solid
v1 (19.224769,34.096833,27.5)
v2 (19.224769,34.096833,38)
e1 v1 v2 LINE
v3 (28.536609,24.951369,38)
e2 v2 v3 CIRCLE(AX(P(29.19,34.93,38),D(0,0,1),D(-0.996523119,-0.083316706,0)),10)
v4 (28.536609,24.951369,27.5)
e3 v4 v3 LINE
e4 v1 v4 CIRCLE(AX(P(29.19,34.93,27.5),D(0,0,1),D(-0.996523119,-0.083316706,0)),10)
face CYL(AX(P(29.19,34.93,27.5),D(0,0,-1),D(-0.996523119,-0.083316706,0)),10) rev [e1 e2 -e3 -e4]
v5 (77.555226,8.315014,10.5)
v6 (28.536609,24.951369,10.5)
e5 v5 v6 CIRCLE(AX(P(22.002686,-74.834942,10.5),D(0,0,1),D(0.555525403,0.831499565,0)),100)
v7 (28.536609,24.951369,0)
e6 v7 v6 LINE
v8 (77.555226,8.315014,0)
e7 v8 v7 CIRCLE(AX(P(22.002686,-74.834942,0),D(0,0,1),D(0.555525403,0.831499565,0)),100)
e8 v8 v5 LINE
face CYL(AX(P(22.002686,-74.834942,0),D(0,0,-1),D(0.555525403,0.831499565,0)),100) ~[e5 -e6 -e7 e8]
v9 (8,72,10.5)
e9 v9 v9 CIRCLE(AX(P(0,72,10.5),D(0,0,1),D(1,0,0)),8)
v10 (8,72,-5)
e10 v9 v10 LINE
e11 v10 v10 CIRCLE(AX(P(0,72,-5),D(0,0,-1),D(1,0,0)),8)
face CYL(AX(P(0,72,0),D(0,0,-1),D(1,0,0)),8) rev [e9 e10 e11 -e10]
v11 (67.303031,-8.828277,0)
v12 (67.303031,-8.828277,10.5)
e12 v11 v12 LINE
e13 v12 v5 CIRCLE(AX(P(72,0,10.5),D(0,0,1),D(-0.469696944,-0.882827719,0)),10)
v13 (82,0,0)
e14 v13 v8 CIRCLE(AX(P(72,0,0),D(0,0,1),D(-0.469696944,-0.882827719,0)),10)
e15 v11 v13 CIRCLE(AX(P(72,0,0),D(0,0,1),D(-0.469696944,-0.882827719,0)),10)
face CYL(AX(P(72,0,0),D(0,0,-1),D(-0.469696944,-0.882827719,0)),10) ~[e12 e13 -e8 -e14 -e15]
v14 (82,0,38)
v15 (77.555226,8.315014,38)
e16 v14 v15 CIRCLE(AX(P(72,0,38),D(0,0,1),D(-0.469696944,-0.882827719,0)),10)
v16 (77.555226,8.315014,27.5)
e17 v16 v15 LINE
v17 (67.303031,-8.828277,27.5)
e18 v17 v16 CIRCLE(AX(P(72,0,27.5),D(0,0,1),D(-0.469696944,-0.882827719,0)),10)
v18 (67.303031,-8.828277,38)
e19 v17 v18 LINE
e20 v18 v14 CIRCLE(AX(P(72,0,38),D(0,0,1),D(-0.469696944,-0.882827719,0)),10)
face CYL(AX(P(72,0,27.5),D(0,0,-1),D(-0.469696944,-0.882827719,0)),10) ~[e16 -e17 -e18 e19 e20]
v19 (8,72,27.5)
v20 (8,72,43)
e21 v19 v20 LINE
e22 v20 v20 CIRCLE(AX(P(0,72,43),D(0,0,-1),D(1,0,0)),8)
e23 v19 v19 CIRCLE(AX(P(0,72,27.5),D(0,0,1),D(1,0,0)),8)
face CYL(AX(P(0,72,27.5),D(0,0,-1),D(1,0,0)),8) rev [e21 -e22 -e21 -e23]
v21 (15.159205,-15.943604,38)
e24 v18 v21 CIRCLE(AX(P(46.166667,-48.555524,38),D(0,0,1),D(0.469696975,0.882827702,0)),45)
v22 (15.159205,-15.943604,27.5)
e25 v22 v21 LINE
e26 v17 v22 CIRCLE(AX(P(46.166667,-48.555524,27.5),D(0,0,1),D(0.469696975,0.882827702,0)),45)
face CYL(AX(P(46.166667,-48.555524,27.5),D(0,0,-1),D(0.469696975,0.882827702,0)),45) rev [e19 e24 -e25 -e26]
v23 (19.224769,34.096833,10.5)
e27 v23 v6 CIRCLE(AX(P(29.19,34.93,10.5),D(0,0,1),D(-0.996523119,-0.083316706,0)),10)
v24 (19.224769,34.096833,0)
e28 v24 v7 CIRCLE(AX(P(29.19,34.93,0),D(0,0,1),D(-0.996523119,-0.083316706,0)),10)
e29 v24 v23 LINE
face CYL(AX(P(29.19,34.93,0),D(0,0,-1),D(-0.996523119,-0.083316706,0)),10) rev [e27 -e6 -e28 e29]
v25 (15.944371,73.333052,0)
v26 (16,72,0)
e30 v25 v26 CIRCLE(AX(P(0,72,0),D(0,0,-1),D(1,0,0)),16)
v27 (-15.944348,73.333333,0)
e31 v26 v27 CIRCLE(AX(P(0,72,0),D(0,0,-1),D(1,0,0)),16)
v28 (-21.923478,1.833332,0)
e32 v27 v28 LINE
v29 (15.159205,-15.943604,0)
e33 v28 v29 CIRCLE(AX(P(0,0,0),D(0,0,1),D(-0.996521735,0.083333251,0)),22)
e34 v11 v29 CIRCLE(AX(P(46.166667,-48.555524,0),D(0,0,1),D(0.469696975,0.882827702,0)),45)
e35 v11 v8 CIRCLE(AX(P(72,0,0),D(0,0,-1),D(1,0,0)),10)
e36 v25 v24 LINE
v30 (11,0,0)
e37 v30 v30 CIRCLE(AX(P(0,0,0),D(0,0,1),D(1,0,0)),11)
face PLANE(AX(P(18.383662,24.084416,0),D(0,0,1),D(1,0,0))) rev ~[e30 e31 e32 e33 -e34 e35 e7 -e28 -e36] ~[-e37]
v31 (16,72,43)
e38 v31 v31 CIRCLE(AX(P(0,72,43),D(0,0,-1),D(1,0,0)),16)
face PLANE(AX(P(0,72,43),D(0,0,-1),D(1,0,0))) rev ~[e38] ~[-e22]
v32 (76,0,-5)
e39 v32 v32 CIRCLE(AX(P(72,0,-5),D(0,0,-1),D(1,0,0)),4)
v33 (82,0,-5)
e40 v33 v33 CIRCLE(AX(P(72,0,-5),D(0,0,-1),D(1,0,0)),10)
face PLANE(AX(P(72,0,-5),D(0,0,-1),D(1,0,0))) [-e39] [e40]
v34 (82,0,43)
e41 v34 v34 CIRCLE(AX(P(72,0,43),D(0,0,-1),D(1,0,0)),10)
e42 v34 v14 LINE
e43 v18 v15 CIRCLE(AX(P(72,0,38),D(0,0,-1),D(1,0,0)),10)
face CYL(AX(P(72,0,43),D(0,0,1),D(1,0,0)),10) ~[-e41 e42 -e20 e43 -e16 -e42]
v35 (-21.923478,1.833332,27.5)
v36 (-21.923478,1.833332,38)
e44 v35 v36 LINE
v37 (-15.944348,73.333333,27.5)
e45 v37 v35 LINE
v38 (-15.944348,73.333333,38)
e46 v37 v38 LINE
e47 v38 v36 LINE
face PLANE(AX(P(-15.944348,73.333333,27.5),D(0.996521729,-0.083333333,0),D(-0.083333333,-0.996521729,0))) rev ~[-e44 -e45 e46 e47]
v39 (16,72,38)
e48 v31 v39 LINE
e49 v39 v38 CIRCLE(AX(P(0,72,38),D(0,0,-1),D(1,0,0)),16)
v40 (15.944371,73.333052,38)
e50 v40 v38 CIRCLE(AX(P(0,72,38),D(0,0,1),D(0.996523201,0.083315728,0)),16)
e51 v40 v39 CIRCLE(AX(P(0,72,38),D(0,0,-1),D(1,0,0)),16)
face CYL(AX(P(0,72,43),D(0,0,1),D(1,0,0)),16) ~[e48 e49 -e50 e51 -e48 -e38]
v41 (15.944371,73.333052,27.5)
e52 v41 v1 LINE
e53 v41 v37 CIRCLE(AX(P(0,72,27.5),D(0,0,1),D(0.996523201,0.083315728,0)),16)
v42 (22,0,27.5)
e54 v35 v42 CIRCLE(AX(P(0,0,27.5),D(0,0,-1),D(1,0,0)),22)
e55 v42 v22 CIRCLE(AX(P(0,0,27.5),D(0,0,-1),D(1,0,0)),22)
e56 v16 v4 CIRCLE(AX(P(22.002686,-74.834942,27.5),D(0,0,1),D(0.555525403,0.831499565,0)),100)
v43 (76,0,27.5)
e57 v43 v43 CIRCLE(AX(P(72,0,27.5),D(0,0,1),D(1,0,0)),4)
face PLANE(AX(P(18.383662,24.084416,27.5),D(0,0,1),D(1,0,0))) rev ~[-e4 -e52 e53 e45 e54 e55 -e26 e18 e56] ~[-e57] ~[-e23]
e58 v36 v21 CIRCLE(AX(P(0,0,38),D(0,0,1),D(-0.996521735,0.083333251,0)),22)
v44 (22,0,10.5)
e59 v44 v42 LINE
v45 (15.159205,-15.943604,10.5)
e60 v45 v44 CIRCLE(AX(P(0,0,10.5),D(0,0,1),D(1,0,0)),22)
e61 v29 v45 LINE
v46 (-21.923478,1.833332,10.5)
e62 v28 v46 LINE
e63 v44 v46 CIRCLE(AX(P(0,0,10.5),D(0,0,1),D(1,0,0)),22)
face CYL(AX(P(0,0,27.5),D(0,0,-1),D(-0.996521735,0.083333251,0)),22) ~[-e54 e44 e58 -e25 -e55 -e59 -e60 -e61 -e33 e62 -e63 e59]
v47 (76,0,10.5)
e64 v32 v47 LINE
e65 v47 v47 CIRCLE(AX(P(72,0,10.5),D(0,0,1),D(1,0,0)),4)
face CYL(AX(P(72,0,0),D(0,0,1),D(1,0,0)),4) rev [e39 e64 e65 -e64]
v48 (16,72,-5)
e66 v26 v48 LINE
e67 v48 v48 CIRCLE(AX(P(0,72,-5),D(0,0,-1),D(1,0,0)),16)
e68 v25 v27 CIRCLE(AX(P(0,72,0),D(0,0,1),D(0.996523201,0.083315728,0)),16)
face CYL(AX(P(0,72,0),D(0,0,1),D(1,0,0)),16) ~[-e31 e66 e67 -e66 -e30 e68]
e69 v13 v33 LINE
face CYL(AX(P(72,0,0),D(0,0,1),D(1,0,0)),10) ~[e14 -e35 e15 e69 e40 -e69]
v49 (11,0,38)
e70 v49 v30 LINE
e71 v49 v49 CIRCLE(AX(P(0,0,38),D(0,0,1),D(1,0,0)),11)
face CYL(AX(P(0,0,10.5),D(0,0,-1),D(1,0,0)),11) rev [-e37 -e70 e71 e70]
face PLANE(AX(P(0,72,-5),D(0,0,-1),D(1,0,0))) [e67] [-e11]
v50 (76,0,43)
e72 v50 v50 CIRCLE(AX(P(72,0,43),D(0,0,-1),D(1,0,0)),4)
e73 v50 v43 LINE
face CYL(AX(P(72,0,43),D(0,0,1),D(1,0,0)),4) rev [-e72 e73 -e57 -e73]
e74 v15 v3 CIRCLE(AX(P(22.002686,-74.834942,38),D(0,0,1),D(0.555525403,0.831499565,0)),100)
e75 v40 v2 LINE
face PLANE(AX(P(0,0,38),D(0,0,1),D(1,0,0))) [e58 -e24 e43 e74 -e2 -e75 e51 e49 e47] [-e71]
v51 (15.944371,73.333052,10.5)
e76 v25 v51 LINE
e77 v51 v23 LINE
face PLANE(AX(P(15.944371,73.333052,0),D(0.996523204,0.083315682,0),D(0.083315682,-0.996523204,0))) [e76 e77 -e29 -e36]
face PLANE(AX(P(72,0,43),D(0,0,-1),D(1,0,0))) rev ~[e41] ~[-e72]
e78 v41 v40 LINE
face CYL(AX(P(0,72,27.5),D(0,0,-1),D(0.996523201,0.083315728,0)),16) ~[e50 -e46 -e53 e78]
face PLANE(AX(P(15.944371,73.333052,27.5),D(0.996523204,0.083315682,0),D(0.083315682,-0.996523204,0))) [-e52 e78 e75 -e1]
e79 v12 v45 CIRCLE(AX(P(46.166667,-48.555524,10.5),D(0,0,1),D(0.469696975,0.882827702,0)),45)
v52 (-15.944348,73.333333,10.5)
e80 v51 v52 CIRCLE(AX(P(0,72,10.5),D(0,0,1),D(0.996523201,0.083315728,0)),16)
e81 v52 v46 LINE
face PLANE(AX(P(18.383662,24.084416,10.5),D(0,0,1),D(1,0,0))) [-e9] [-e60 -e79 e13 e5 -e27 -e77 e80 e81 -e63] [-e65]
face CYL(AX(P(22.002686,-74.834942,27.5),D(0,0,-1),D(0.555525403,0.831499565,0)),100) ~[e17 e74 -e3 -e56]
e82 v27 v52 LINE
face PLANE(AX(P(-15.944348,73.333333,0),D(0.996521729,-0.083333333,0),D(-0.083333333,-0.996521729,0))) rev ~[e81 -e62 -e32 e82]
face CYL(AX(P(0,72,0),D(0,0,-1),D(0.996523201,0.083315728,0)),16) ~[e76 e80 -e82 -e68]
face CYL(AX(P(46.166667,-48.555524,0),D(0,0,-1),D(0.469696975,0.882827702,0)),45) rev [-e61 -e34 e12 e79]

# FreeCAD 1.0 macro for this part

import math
import FreeCAD as App
import Part
import Sketcher

V = App.Vector

doc = App.newDocument("Part")
body = doc.addObject("PartDesign::Body", "Body")

# Sketch on XY plane
sketch1 = body.newObject("Sketcher::SketchObject", "Sketch")
sketch1.AttachmentSupport = (doc.getObject("XY_Plane"), [""])
sketch1.MapMode = "FlatFace"
sketch1.addGeometry(Part.ArcOfCircle(Part.Circle(V(0, 0, 0), V(0, 0, 1), 22), math.radians(175), math.radians(314)), False)
sketch1.addGeometry(Part.ArcOfCircle(Part.Circle(V(46.2, -48.6, 0), V(0, 0, 1), 45), math.radians(62), math.radians(134)), False)
sketch1.addGeometry(Part.ArcOfCircle(Part.Circle(V(72, 0, 0), V(0, 0, 1), 10), math.radians(-118), math.radians(56)), False)
sketch1.addGeometry(Part.ArcOfCircle(Part.Circle(V(22, -74.8, 0), V(0, 0, 1), 100), math.radians(56), math.radians(86)), False)
sketch1.addGeometry(Part.ArcOfCircle(Part.Circle(V(29.2, 34.9, 0), V(0, 0, 1), 10), math.radians(-175), math.radians(-94)), False)
sketch1.addGeometry(Part.LineSegment(V(19.2, 34.1, 0), V(15.9, 73.3, 0)), False)
sketch1.addGeometry(Part.ArcOfCircle(Part.Circle(V(0, 72, 0), V(0, 0, 1), 16), math.radians(5), math.radians(175)), False)
sketch1.addGeometry(Part.LineSegment(V(-15.9, 73.3, 0), V(-21.9, 1.8, 0)), False)
sketch1.addGeometry(Part.Circle(V(0, 0, 0), V(0, 0, 1), 11), False)
sketch1.addGeometry(Part.Circle(V(72, 0, 0), V(0, 0, 1), 4), False)
sketch1.addGeometry(Part.Circle(V(0, 72, 0), V(0, 0, 1), 8), False)
sketch1.addConstraint(Sketcher.Constraint("Tangent", 0, 2, 1, 2))
sketch1.addConstraint(Sketcher.Constraint("Tangent", 1, 1, 2, 1))
sketch1.addConstraint(Sketcher.Constraint("Coincident", 2, 2, 3, 1))
sketch1.addConstraint(Sketcher.Constraint("Tangent", 3, 2, 4, 2))
sketch1.addConstraint(Sketcher.Constraint("Tangent", 4, 1, 5, 1))
sketch1.addConstraint(Sketcher.Constraint("Tangent", 5, 2, 6, 1))
sketch1.addConstraint(Sketcher.Constraint("Tangent", 6, 2, 7, 1))
sketch1.addConstraint(Sketcher.Constraint("Tangent", 7, 2, 0, 1))
sketch1.addConstraint(Sketcher.Constraint("Coincident", 0, 3, -1, 1))
sketch1.addConstraint(Sketcher.Constraint("Coincident", 8, 3, -1, 1))
sketch1.addConstraint(Sketcher.Constraint("Coincident", 9, 3, 2, 3))
sketch1.addConstraint(Sketcher.Constraint("Coincident", 10, 3, 6, 3))
sketch1.addConstraint(Sketcher.Constraint("Equal", 2, 4))
sketch1.addConstraint(Sketcher.Constraint("PointOnObject", 2, 3, -1))
sketch1.addConstraint(Sketcher.Constraint("PointOnObject", 6, 3, -2))
sketch1.addConstraint(Sketcher.Constraint("Diameter", 8, 22.0))
sketch1.addConstraint(Sketcher.Constraint("Diameter", 9, 8.0))
sketch1.addConstraint(Sketcher.Constraint("Diameter", 10, 16.0))
sketch1.addConstraint(Sketcher.Constraint("Radius", 0, 22.0))
sketch1.addConstraint(Sketcher.Constraint("Radius", 1, 45.0))
sketch1.addConstraint(Sketcher.Constraint("Radius", 2, 10.0))
sketch1.addConstraint(Sketcher.Constraint("Radius", 3, 100.0))
sketch1.addConstraint(Sketcher.Constraint("Radius", 6, 16.0))
sketch1.addConstraint(Sketcher.Constraint("DistanceX", -1, 1, 2, 3, 72.0))
sketch1.addConstraint(Sketcher.Constraint("DistanceY", -1, 1, 6, 3, 72.0))
sketch1.addConstraint(Sketcher.Constraint("DistanceX", -1, 1, 4, 3, 29.19))
sketch1.addConstraint(Sketcher.Constraint("DistanceY", -1, 1, 4, 3, 34.93))
sketch1.addConstraint(Sketcher.Constraint("DistanceY", 1, 1, 2, 2, 17.143292))
pad1 = body.newObject("PartDesign::Pad", "Pad")
pad1.Profile = sketch1
pad1.Length = 10.5

# Sketch on XY plane
sketch2 = body.newObject("Sketcher::SketchObject", "Sketch001")
sketch2.AttachmentSupport = (doc.getObject("XY_Plane"), [""])
sketch2.MapMode = "FlatFace"
sketch2.AttachmentOffset = App.Placement(V(0, 0, 10.5), App.Rotation())
sketch2.addGeometry(Part.Circle(V(0, 0, 0), V(0, 0, 1), 22), False)
sketch2.addGeometry(Part.Circle(V(0, 0, 0), V(0, 0, 1), 11), False)
sketch2.addConstraint(Sketcher.Constraint("Coincident", 0, 3, -1, 1))
sketch2.addConstraint(Sketcher.Constraint("Coincident", 1, 3, -1, 1))
sketch2.addConstraint(Sketcher.Constraint("Diameter", 0, 44.0))
sketch2.addConstraint(Sketcher.Constraint("Diameter", 1, 22.0))
pad2 = body.newObject("PartDesign::Pad", "Pad001")
pad2.Profile = sketch2
pad2.Length = 27.5

# Sketch on XY plane
sketch3 = body.newObject("Sketcher::SketchObject", "Sketch002")
sketch3.AttachmentSupport = (doc.getObject("XY_Plane"), [""])
sketch3.MapMode = "FlatFace"
sketch3.addGeometry(Part.Circle(V(72, 0, 0), V(0, 0, 1), 10), False)
sketch3.addGeometry(Part.Circle(V(72, 0, 0), V(0, 0, 1), 4), False)
sketch3.addGeometry(Part.Circle(V(0, 72, 0), V(0, 0, 1), 16), False)
sketch3.addGeometry(Part.Circle(V(0, 72, 0), V(0, 0, 1), 8), False)
sketch3.addConstraint(Sketcher.Constraint("Coincident", 1, 3, 0, 3))
sketch3.addConstraint(Sketcher.Constraint("Coincident", 3, 3, 2, 3))
sketch3.addConstraint(Sketcher.Constraint("PointOnObject", 0, 3, -1))
sketch3.addConstraint(Sketcher.Constraint("PointOnObject", 2, 3, -2))
sketch3.addConstraint(Sketcher.Constraint("Diameter", 0, 20.0))
sketch3.addConstraint(Sketcher.Constraint("Diameter", 1, 8.0))
sketch3.addConstraint(Sketcher.Constraint("Diameter", 2, 32.0))
sketch3.addConstraint(Sketcher.Constraint("Diameter", 3, 16.0))
sketch3.addConstraint(Sketcher.Constraint("DistanceX", -1, 1, 0, 3, 72.0))
sketch3.addConstraint(Sketcher.Constraint("DistanceY", -1, 1, 2, 3, 72.0))
pad3 = body.newObject("PartDesign::Pad", "Pad002")
pad3.Profile = sketch3
pad3.Length = 5
pad3.Reversed = True
doc.recompute()

linearpattern = body.newObject("PartDesign::LinearPattern", "LinearPattern")
linearpattern.Originals = [pad1]
linearpattern.Direction = (doc.getObject("Z_Axis"), [""])
linearpattern.Mode = "offset"
linearpattern.Offset = 27.5
linearpattern.Occurrences = 2
body.Tip = linearpattern
doc.recompute()

linearpattern2 = body.newObject("PartDesign::LinearPattern", "LinearPattern001")
linearpattern2.Originals = [pad3]
linearpattern2.Direction = (doc.getObject("Z_Axis"), [""])
linearpattern2.Mode = "offset"
linearpattern2.Offset = 43
linearpattern2.Occurrences = 2
body.Tip = linearpattern2

doc.recompute()
